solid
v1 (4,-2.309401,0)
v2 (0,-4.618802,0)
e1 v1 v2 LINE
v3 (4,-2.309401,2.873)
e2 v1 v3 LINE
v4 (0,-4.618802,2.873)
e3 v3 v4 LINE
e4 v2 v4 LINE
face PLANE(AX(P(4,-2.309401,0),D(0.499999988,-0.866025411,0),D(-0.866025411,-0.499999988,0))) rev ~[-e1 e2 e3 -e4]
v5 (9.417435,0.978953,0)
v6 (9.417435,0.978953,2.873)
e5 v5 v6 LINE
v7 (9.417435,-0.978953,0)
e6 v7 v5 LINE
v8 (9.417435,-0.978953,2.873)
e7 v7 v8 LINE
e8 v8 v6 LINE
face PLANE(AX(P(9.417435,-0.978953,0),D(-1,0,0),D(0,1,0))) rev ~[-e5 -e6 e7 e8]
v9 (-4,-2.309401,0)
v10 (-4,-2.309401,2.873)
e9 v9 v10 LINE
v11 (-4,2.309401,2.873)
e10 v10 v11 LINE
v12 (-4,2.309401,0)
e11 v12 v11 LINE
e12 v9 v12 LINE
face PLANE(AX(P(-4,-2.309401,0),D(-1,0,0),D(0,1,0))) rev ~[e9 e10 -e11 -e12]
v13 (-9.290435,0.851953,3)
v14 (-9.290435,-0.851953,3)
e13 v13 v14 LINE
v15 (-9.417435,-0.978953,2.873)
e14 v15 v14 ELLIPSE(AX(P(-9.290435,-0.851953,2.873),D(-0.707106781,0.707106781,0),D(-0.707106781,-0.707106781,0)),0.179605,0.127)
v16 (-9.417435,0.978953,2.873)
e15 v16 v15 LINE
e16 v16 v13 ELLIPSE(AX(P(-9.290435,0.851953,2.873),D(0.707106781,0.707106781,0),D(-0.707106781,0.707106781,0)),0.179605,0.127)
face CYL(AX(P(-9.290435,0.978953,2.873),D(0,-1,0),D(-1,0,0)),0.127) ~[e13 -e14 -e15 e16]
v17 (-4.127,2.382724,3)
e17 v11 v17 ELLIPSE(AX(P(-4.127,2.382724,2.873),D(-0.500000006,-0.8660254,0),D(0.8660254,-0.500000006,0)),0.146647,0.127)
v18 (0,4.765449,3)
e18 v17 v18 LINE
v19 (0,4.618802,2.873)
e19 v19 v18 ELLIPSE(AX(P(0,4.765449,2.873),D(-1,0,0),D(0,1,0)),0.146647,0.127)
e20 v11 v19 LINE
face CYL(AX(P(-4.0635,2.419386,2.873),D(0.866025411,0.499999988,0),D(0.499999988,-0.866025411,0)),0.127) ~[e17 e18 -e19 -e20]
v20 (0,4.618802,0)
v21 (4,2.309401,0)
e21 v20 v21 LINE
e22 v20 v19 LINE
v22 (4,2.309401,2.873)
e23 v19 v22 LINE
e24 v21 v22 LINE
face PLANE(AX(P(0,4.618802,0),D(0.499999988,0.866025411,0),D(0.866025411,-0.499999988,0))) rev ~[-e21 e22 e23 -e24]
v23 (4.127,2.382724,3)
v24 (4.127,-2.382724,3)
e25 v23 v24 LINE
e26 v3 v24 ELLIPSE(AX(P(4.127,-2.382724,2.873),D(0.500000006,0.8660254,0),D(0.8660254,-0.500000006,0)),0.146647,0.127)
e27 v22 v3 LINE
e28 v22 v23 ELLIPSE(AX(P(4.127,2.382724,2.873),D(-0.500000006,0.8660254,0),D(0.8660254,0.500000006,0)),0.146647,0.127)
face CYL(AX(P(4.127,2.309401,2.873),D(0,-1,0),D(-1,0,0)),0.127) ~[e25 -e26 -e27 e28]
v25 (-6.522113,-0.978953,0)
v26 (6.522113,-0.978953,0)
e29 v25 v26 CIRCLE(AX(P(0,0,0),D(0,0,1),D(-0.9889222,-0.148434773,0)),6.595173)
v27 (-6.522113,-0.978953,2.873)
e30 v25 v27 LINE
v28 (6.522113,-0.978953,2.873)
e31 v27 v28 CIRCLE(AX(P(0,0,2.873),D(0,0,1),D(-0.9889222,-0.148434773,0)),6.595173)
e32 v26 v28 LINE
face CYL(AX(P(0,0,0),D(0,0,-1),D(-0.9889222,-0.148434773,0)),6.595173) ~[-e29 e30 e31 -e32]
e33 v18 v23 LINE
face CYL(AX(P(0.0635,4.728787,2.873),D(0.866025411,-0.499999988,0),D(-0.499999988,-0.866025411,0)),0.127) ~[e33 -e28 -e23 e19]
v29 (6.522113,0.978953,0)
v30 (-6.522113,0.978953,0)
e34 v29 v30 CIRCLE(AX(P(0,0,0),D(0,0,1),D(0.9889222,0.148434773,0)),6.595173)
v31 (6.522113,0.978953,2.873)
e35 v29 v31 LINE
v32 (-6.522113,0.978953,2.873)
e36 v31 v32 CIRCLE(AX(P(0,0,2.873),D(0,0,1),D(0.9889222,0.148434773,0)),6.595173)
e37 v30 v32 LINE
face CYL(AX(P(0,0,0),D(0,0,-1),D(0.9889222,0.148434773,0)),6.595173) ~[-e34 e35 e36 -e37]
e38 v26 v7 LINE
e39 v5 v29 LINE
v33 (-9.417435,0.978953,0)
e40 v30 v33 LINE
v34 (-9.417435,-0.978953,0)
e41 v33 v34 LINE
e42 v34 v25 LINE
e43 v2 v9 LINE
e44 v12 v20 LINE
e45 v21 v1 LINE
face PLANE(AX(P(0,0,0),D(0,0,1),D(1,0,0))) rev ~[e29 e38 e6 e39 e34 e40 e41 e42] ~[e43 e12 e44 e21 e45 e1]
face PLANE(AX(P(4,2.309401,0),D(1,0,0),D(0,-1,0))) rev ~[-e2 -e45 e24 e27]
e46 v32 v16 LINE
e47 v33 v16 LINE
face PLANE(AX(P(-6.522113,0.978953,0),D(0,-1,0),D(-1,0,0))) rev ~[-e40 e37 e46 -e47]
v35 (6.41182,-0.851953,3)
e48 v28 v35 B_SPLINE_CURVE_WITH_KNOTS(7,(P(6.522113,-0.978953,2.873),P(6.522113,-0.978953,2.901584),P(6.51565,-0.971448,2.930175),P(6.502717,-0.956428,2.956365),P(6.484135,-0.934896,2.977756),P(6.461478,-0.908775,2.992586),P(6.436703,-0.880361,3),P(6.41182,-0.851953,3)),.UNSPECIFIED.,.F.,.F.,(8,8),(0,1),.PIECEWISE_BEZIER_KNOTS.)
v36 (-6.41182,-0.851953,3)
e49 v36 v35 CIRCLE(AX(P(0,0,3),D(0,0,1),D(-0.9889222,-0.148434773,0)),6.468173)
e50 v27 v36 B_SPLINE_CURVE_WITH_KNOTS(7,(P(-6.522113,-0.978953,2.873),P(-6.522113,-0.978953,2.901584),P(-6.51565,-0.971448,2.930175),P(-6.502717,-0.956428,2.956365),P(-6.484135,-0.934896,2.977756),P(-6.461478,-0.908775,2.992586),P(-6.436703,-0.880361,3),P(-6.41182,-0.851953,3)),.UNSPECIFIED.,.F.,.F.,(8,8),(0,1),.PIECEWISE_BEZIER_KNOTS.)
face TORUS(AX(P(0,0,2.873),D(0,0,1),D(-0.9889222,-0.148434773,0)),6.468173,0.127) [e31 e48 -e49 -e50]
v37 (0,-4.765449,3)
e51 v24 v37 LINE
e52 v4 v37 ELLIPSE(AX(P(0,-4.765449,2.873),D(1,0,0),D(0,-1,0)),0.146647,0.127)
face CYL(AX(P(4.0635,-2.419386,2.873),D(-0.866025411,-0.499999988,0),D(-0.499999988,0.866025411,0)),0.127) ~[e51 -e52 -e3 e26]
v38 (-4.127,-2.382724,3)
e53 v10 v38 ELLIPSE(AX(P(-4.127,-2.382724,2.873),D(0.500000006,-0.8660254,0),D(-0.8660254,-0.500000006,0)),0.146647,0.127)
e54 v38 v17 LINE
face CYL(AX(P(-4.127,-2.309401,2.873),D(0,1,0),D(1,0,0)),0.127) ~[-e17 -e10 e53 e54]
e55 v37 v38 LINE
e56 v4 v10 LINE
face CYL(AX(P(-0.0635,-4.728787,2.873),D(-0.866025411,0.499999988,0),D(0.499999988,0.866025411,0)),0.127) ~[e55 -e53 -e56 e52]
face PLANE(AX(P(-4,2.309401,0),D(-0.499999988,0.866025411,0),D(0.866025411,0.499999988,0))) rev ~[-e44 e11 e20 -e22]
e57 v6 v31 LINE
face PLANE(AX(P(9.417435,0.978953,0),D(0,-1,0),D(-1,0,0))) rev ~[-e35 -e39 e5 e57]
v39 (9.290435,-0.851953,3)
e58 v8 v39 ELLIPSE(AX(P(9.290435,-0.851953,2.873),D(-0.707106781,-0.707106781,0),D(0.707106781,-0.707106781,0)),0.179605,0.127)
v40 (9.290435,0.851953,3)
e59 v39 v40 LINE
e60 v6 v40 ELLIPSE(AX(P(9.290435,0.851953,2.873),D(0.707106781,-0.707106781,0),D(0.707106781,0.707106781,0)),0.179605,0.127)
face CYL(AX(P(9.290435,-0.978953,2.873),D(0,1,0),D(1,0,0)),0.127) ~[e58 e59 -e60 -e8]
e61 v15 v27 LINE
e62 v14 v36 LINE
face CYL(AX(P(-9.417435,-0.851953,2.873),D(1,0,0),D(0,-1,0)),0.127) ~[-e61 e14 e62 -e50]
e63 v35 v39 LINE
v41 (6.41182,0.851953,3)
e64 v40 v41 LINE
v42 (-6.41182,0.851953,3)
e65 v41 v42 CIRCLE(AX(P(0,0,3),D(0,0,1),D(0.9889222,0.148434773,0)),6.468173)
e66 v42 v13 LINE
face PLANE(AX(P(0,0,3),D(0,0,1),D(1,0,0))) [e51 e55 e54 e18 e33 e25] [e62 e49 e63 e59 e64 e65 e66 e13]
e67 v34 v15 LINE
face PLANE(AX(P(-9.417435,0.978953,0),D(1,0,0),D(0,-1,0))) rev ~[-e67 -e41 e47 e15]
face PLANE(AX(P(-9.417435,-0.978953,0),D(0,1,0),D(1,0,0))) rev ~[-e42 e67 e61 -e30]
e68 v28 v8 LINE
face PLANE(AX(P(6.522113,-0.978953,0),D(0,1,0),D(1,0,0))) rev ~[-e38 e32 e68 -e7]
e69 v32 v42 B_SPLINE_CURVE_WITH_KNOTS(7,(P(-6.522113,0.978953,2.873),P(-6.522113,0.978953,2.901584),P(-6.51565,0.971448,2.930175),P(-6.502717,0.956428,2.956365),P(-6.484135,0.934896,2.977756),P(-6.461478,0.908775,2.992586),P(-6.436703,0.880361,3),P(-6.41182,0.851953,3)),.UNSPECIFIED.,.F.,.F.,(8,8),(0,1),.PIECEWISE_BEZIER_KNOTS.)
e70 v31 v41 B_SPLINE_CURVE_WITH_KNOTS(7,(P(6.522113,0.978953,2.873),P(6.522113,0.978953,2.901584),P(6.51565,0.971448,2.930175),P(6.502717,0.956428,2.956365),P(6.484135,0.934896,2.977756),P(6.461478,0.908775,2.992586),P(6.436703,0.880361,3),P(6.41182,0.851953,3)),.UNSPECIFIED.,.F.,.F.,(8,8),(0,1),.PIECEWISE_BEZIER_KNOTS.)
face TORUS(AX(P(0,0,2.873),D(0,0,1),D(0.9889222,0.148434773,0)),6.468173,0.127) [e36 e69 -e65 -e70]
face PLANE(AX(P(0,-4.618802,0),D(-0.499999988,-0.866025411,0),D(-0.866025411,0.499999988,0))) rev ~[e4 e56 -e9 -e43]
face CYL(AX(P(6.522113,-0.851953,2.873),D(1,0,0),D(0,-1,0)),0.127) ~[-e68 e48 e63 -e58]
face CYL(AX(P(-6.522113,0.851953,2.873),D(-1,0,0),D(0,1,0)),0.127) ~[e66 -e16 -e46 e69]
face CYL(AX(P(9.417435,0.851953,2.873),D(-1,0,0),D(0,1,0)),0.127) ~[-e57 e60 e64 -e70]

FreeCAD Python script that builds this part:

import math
import FreeCAD as App
import Part
import Sketcher
from FreeCAD import Vector
Q = App.Units.Quantity


def edges_at(feature, points):
    """Names of the edges that pass closest to the given points."""
    edges = feature.Shape.Edges
    near = lambda p: min(range(len(edges)), key=lambda i: edges[i].distToShape(Part.Vertex(*p))[0])
    return sorted({f"Edge{near(p) + 1}" for p in points})

doc = App.newDocument("Part")
params = doc.addObject("Spreadsheet::Sheet", "Params")
for row, (alias, value) in enumerate([
    ("pad1_length", "3 mm"),
    ("fillet_radius", "0.127 mm"),
], start=1):
    params.set(f"A{row}", alias)
    params.set(f"B{row}", "=" + value)
    params.setAlias(f"B{row}", alias)

body = doc.addObject("PartDesign::Body", "Body")

sketch1 = body.newObject("Sketcher::SketchObject", "Sketch")
sketch1.AttachmentSupport = (doc.getObject("XY_Plane"), [""])
sketch1.MapMode = "FlatFace"
sketch1.addGeometry([
    Part.LineSegment(Vector(9.4, 1, 0), Vector(6.5, 1, 0)),
    Part.ArcOfCircle(Part.Circle(Vector(0, 0, 0), Vector(0, 0, 1), 6.6), math.radians(9), math.radians(171)),
    Part.LineSegment(Vector(-6.5, 1, 0), Vector(-9.4, 1, 0)),
    Part.LineSegment(Vector(-9.4, 1, 0), Vector(-9.4, -1, 0)),
    Part.LineSegment(Vector(-9.4, -1, 0), Vector(-6.5, -1, 0)),
    Part.ArcOfCircle(Part.Circle(Vector(0, 0, 0), Vector(0, 0, 1), 6.6), math.radians(-171), math.radians(-9)),
    Part.LineSegment(Vector(6.5, -1, 0), Vector(9.4, -1, 0)),
    Part.LineSegment(Vector(9.4, -1, 0), Vector(9.4, 1, 0)),
    Part.LineSegment(Vector(-4, 2.3, 0), Vector(0, 4.6, 0)),
    Part.LineSegment(Vector(0, 4.6, 0), Vector(4, 2.3, 0)),
    Part.LineSegment(Vector(4, 2.3, 0), Vector(4, -2.3, 0)),
    Part.LineSegment(Vector(4, -2.3, 0), Vector(0, -4.6, 0)),
    Part.LineSegment(Vector(0, -4.6, 0), Vector(-4, -2.3, 0)),
    Part.LineSegment(Vector(-4, -2.3, 0), Vector(-4, 2.3, 0)),
], False)
sketch1.addConstraint([
    Sketcher.Constraint("Coincident", 0, 2, 1, 1),
    Sketcher.Constraint("Coincident", 1, 2, 2, 1),
    Sketcher.Constraint("Coincident", 2, 2, 3, 1),
    Sketcher.Constraint("Coincident", 3, 2, 4, 1),
    Sketcher.Constraint("Coincident", 4, 2, 5, 1),
    Sketcher.Constraint("Coincident", 5, 2, 6, 1),
    Sketcher.Constraint("Coincident", 6, 2, 7, 1),
    Sketcher.Constraint("Coincident", 7, 2, 0, 1),
    Sketcher.Constraint("Coincident", 8, 2, 9, 1),
    Sketcher.Constraint("Coincident", 9, 2, 10, 1),
    Sketcher.Constraint("Coincident", 10, 2, 11, 1),
    Sketcher.Constraint("Coincident", 11, 2, 12, 1),
    Sketcher.Constraint("Coincident", 12, 2, 13, 1),
    Sketcher.Constraint("Coincident", 13, 2, 8, 1),
    Sketcher.Constraint("Horizontal", 0),
    Sketcher.Constraint("Horizontal", 2),
    Sketcher.Constraint("Vertical", 3),
    Sketcher.Constraint("Horizontal", 4),
    Sketcher.Constraint("Horizontal", 6),
    Sketcher.Constraint("Vertical", 7),
    Sketcher.Constraint("Vertical", 10),
    Sketcher.Constraint("Vertical", 13),
    Sketcher.Constraint("Coincident", 1, 3, -1, 1),
    Sketcher.Constraint("Coincident", 5, 3, -1, 1),
    Sketcher.Constraint("Equal", 1, 5),
    Sketcher.Constraint("Symmetric", 2, 2, 6, 2, -1, 1),
    Sketcher.Constraint("Symmetric", 8, 2, 11, 2, -1, 1),
    Sketcher.Constraint("Symmetric", 9, 2, 12, 2, -1, 1),
    Sketcher.Constraint("PointOnObject", 8, 2, -2),
    Sketcher.Constraint("Parallel", 8, 11),
    Sketcher.Constraint("Horizontal", 0, 2, 1, 2),
    Sketcher.Constraint("Horizontal", 4, 2, 5, 2),
    Sketcher.Constraint("Horizontal", 10, 2, 12, 2),
    Sketcher.Constraint("Angle", 8, Q("29.999999 deg")),
    Sketcher.Constraint("DistanceX", -1, 1, 9, 2, 4.0),
    Sketcher.Constraint("DistanceY", 10, 2, 10, 1, 4.618802),
    Sketcher.Constraint("Radius", 1, 6.595173),
    Sketcher.Constraint("DistanceX", 0, 2, 0, 1, 2.895322),
    Sketcher.Constraint("DistanceY", 3, 2, 3, 1, 1.957906),
])
pad1 = body.newObject("PartDesign::Pad", "Pad")
pad1.Profile = sketch1
pad1.setExpression("Length", "Params.pad1_length")
doc.recompute()

fillet = body.newObject("PartDesign::Fillet", "Fillet")
fillet.Base = (pad1, edges_at(pad1, [
    (7.97, -0.979, 3),
    (9.417, 0, 3),
    (7.97, 0.979, 3),
    (0, 6.595, 3),
    (-7.97, 0.979, 3),
    (-9.417, 0, 3),
    (-7.97, -0.979, 3),
    (0, -6.595, 3),
    (-2, 3.464, 3),
    (2, 3.464, 3),
    (4, 0, 3),
    (2, -3.464, 3),
    (-2, -3.464, 3),
    (-4, 0, 3),
]))
fillet.setExpression("Radius", "Params.fillet_radius")

doc.recompute()
